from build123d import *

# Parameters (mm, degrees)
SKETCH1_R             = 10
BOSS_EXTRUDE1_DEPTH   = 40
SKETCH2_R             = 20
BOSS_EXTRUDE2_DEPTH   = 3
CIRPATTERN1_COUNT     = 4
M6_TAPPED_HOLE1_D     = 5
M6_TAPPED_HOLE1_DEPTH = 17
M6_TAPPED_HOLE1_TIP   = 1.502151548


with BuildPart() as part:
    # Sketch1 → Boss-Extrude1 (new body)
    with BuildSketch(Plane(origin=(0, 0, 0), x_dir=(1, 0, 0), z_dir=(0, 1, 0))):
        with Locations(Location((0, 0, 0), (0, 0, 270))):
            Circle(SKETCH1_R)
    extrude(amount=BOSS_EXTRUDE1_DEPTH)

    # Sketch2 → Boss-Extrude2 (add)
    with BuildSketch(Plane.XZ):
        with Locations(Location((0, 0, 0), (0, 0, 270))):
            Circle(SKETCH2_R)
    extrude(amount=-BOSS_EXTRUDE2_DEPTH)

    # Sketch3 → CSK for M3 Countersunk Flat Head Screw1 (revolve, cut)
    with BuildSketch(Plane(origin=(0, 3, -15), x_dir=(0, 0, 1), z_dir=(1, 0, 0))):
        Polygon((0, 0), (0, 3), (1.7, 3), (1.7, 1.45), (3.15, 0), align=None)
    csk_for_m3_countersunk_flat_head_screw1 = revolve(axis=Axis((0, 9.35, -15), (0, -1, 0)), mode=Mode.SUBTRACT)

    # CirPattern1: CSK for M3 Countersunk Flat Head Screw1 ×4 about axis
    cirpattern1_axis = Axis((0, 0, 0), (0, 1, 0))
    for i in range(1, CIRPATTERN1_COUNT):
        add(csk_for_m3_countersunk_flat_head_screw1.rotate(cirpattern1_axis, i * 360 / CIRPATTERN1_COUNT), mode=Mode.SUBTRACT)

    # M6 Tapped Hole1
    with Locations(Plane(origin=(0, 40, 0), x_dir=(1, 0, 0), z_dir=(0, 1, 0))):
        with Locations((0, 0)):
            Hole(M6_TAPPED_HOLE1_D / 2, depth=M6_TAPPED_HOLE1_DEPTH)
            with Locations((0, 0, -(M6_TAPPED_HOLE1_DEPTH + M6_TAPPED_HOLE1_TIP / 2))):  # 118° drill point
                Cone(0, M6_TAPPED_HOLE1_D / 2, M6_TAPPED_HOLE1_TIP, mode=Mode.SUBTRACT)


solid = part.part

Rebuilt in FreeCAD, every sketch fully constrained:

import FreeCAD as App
import Part
import Sketcher
Q = App.Units.Quantity


def add_polygon(sketch, points):
    """Adds a closed chain of lines whose ends are joined by coincident constraints."""
    first, n = sketch.GeometryCount, len(points)
    for a, b in zip(points, points[1:] + points[:1]):
        sketch.addGeometry(Part.LineSegment(App.Vector(*a, 0), App.Vector(*b, 0)), False)
    for i in range(n):
        sketch.addConstraint(Sketcher.Constraint("Coincident", first + i, 2, first + (i + 1) % n, 1))

doc = App.newDocument("Part")
body = doc.addObject("PartDesign::Body", "Body")

# Sketch on XZ plane
sketch1 = body.newObject("Sketcher::SketchObject", "Sketch")
sketch1.AttachmentSupport = (doc.getObject("XZ_Plane"), [""])
sketch1.MapMode = "FlatFace"
sketch1.addGeometry(Part.Circle(App.Vector(0, 0, 0), App.Vector(0, 0, 1), 10), False)
sketch1.addConstraint([
    Sketcher.Constraint("Coincident", 0, 3, -1, 1),
    Sketcher.Constraint("Diameter", 0, 20.0),
])
pad1 = body.newObject("PartDesign::Pad", "Pad")
pad1.Profile = sketch1
pad1.Length = 40
pad1.Reversed = True

# Sketch on XZ plane
sketch2 = body.newObject("Sketcher::SketchObject", "Sketch001")
sketch2.AttachmentSupport = (doc.getObject("XZ_Plane"), [""])
sketch2.MapMode = "FlatFace"
sketch2.addGeometry(Part.Circle(App.Vector(0, 0, 0), App.Vector(0, 0, 1), 20), False)
sketch2.addConstraint([
    Sketcher.Constraint("Coincident", 0, 3, -1, 1),
    Sketcher.Constraint("Diameter", 0, 40.0),
])
pad2 = body.newObject("PartDesign::Pad", "Pad001")
pad2.Profile = sketch2
pad2.Length = 3
pad2.Reversed = True

# Sketch on YZ plane
sketch3 = body.newObject("Sketcher::SketchObject", "Sketch002")
sketch3.AttachmentSupport = (doc.getObject("YZ_Plane"), [""])
sketch3.MapMode = "FlatFace"
add_polygon(sketch3, [(0, -15), (3, -15), (3, -11.8), (1.6, -13.3), (0, -13.3)])  # lines 0-4
sketch3.addGeometry(Part.LineSegment(App.Vector(3, -15, 0), App.Vector(0, -15, 0)), True)  # axis
sketch3.addConstraint([
    Sketcher.Constraint("Horizontal", 0),
    Sketcher.Constraint("Vertical", 1),
    Sketcher.Constraint("Horizontal", 3),
    Sketcher.Constraint("Vertical", 4),
    Sketcher.Constraint("Horizontal", 5),
    Sketcher.Constraint("Coincident", 5, 1, 0, 2),
    Sketcher.Constraint("PointOnObject", 3, 2, -2),
    Sketcher.Constraint("PointOnObject", 5, 2, -2),
    Sketcher.Constraint("DistanceX", 0, 1, 0, 2, 3.0),
    Sketcher.Constraint("Angle", 2, Q("-135 deg")),
    Sketcher.Constraint("DistanceY", 4, 2, 4, 1, 1.7),
    Sketcher.Constraint("DistanceY", 0, 2, -1, 1, 15.0),
    Sketcher.Constraint("DistanceX", 3, 2, 3, 1, 1.55),
])
groove = body.newObject("PartDesign::Groove", "Groove")
groove.Profile = sketch3
groove.ReferenceAxis = (sketch3, ["Axis0"])
groove.Angle = 360
doc.recompute()

polarpattern = body.newObject("PartDesign::PolarPattern", "PolarPattern")
polarpattern.Originals = [groove]
polarpattern.Axis = (doc.getObject("Y_Axis"), [""])
polarpattern.Angle = 360
polarpattern.Occurrences = 4
body.Tip = polarpattern

# Sketch on XZ plane
sketch4 = body.newObject("Sketcher::SketchObject", "Sketch003")
sketch4.AttachmentSupport = (doc.getObject("XZ_Plane"), [""])
sketch4.MapMode = "FlatFace"
sketch4.AttachmentOffset = App.Placement(App.Vector(0, 0, -40), App.Rotation())
sketch4.addGeometry(Part.Circle(App.Vector(0, 0, 0), App.Vector(0, 0, 1), 2.5), False)
sketch4.addConstraint([
    Sketcher.Constraint("Coincident", 0, 3, -1, 1),
    Sketcher.Constraint("Diameter", 0, 5.0),
])
doc.recompute()
hole = body.newObject("PartDesign::Hole", "Hole")
hole.Profile = sketch4
hole.ThreadType = "None"
hole.Diameter = 5
hole.DepthType = "Dimension"
hole.Depth = 17
hole.DrillPoint = "Angled"
hole.DrillPointAngle = 118
hole.Reversed = True

doc.recompute()
